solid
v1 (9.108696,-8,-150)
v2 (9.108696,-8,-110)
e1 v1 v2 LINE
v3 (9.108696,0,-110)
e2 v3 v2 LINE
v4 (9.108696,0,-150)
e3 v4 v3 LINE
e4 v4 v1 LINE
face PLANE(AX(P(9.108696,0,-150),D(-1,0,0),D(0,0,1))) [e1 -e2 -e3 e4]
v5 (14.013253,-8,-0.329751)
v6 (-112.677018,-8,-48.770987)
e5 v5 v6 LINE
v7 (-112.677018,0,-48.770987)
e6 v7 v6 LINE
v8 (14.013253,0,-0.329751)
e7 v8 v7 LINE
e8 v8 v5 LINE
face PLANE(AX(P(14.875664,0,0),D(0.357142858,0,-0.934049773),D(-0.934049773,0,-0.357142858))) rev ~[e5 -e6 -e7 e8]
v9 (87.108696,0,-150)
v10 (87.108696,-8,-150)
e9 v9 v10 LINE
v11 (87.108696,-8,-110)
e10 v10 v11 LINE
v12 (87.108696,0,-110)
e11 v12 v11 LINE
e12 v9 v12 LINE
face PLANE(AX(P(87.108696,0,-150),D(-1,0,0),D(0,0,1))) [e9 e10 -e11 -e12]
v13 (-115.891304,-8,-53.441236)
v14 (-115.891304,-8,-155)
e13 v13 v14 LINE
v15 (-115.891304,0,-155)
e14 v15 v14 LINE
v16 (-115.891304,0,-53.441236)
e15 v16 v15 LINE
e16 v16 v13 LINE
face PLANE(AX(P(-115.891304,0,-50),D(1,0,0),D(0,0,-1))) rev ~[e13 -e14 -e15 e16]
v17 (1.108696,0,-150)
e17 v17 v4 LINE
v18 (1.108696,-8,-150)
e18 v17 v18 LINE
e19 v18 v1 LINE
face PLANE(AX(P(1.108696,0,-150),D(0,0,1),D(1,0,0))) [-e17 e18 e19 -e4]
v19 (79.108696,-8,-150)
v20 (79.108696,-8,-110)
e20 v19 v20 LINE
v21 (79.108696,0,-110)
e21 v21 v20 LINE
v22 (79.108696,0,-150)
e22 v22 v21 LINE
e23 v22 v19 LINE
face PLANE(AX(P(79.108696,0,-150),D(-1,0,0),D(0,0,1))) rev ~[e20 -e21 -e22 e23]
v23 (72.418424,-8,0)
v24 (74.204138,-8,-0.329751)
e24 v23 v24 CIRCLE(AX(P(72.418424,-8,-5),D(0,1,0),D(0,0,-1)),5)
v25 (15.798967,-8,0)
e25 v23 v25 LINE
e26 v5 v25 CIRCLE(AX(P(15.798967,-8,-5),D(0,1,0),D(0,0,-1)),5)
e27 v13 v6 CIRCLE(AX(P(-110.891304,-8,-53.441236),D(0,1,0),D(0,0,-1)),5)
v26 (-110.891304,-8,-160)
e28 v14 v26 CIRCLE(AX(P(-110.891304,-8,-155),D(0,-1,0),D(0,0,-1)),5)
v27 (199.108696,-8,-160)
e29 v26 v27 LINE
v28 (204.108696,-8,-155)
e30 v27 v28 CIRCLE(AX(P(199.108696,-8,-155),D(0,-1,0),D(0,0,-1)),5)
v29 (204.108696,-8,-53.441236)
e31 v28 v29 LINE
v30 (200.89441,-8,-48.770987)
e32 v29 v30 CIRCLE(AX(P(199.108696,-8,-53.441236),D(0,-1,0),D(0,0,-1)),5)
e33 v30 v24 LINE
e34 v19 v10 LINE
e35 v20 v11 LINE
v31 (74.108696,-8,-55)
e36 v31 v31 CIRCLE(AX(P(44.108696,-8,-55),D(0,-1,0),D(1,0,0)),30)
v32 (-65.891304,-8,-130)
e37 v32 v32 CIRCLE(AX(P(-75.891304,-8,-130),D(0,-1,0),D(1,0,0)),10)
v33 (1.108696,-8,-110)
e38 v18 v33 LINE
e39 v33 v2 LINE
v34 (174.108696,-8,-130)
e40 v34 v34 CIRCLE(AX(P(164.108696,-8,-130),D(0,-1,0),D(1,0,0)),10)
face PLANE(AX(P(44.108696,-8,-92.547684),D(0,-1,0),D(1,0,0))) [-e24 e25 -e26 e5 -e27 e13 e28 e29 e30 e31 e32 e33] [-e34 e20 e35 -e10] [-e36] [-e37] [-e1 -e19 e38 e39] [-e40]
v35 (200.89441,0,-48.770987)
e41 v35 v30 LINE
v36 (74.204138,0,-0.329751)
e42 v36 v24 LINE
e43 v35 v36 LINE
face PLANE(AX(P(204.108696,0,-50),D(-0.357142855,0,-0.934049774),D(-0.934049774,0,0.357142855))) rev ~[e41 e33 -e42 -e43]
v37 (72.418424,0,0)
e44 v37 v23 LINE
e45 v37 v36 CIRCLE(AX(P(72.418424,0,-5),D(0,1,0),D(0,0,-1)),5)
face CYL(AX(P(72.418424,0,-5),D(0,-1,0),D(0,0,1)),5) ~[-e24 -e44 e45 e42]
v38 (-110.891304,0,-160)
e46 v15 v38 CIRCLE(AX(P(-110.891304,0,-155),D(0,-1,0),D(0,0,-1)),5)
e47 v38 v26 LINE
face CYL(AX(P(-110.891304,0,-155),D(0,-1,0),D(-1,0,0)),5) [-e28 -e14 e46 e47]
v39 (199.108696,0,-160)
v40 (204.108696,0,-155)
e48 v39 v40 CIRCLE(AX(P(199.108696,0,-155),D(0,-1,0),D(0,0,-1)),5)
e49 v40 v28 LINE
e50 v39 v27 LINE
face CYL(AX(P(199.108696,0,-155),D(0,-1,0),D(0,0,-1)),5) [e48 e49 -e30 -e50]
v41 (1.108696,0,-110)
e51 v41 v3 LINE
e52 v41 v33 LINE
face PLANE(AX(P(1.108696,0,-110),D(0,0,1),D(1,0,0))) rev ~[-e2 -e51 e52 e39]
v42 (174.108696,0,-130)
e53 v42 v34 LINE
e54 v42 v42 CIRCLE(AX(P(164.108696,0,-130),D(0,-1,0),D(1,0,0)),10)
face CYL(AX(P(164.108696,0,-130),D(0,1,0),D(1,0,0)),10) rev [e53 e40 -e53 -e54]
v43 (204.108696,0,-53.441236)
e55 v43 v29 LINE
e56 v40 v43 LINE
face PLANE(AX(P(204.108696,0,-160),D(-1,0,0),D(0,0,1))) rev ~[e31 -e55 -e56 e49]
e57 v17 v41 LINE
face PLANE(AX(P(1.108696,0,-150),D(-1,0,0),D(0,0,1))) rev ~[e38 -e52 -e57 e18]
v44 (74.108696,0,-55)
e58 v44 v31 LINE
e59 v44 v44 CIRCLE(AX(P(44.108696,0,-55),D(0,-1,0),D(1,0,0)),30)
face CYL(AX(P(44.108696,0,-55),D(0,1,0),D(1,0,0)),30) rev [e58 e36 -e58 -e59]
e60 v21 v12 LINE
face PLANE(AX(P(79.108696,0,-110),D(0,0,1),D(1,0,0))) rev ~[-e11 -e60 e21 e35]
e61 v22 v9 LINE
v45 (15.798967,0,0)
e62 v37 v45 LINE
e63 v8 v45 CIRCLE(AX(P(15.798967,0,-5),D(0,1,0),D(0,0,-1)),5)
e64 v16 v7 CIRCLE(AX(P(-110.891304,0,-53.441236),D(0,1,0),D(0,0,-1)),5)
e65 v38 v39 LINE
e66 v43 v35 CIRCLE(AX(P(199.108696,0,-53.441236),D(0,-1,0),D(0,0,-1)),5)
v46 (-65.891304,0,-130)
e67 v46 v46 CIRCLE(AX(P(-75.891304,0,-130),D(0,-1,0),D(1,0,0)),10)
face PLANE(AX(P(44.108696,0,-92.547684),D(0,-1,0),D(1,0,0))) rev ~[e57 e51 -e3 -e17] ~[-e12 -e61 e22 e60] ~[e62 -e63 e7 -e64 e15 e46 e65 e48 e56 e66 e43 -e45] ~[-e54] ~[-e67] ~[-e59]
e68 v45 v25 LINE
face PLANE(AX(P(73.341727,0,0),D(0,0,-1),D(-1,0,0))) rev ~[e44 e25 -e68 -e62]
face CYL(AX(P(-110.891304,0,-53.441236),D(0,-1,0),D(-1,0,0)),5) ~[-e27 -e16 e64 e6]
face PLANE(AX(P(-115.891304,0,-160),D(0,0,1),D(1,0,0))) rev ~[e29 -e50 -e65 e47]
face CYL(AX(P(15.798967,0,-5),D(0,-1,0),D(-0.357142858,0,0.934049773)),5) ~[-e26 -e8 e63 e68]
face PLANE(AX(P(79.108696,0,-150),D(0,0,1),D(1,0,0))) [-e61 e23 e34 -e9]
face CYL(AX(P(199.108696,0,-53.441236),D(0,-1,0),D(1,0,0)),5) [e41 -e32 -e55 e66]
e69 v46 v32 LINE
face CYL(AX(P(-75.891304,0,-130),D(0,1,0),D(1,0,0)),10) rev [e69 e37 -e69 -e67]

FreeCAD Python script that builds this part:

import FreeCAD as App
import Part
import Sketcher


def edges_at(feature, points):
    """Names of the edges that pass closest to the given points."""
    edges = feature.Shape.Edges
    near = lambda p: min(range(len(edges)), key=lambda i: edges[i].distToShape(Part.Vertex(*p))[0])
    return sorted({f"Edge{near(p) + 1}" for p in points})

doc = App.newDocument("Part")
body = doc.addObject("PartDesign::Body", "Body")

# Sketch on XZ plane
sketch1 = body.newObject("Sketcher::SketchObject", "Sketch")
sketch1.AttachmentSupport = (doc.getObject("XZ_Plane"), [""])
sketch1.MapMode = "FlatFace"
sketch1.addGeometry([
    Part.LineSegment(App.Vector(-116, -50, 0), App.Vector(-116, -160, 0)),  # 0
    Part.LineSegment(App.Vector(-116, -160, 0), App.Vector(204, -160, 0)),  # 1
    Part.LineSegment(App.Vector(204, -160, 0), App.Vector(204, -50, 0)),  # 2
    Part.LineSegment(App.Vector(204, -50, 0), App.Vector(73, 0, 0)),  # 3
    Part.LineSegment(App.Vector(73, 0, 0), App.Vector(15, 0, 0)),  # 4
    Part.LineSegment(App.Vector(15, 0, 0), App.Vector(-116, -50, 0)),  # 5
    Part.Circle(App.Vector(-76, -130, 0), App.Vector(0, 0, 1), 10),  # 6
    Part.LineSegment(App.Vector(9, -150, 0), App.Vector(1, -150, 0)),  # 7
    Part.LineSegment(App.Vector(1, -150, 0), App.Vector(1, -110, 0)),  # 8
    Part.LineSegment(App.Vector(1, -110, 0), App.Vector(9, -110, 0)),  # 9
    Part.LineSegment(App.Vector(9, -110, 0), App.Vector(9, -150, 0)),  # 10
    Part.LineSegment(App.Vector(87, -150, 0), App.Vector(79, -150, 0)),  # 11
    Part.LineSegment(App.Vector(79, -150, 0), App.Vector(79, -110, 0)),  # 12
    Part.LineSegment(App.Vector(79, -110, 0), App.Vector(87, -110, 0)),  # 13
    Part.LineSegment(App.Vector(87, -110, 0), App.Vector(87, -150, 0)),  # 14
    Part.Circle(App.Vector(164, -130, 0), App.Vector(0, 0, 1), 10),  # 15
    Part.Circle(App.Vector(44, -55, 0), App.Vector(0, 0, 1), 30),  # 16
], False)
sketch1.addConstraint([
    Sketcher.Constraint("Coincident", 0, 2, 1, 1),
    Sketcher.Constraint("Coincident", 1, 2, 2, 1),
    Sketcher.Constraint("Coincident", 2, 2, 3, 1),
    Sketcher.Constraint("Coincident", 3, 2, 4, 1),
    Sketcher.Constraint("Coincident", 4, 2, 5, 1),
    Sketcher.Constraint("Coincident", 5, 2, 0, 1),
    Sketcher.Constraint("Coincident", 7, 2, 8, 1),
    Sketcher.Constraint("Coincident", 8, 2, 9, 1),
    Sketcher.Constraint("Coincident", 9, 2, 10, 1),
    Sketcher.Constraint("Coincident", 10, 2, 7, 1),
    Sketcher.Constraint("Coincident", 11, 2, 12, 1),
    Sketcher.Constraint("Coincident", 12, 2, 13, 1),
    Sketcher.Constraint("Coincident", 13, 2, 14, 1),
    Sketcher.Constraint("Coincident", 14, 2, 11, 1),
    Sketcher.Constraint("Vertical", 0),
    Sketcher.Constraint("Horizontal", 1),
    Sketcher.Constraint("Vertical", 2),
    Sketcher.Constraint("Horizontal", 4),
    Sketcher.Constraint("Horizontal", 7),
    Sketcher.Constraint("Vertical", 8),
    Sketcher.Constraint("Horizontal", 9),
    Sketcher.Constraint("Vertical", 10),
    Sketcher.Constraint("Horizontal", 11),
    Sketcher.Constraint("Vertical", 12),
    Sketcher.Constraint("Horizontal", 13),
    Sketcher.Constraint("Vertical", 14),
    Sketcher.Constraint("Equal", 6, 15),
    Sketcher.Constraint("PointOnObject", 3, 2, -1),
    Sketcher.Constraint("Horizontal", 6, 3, 15, 3),
    Sketcher.Constraint("Horizontal", 2, 2, 5, 2),
    Sketcher.Constraint("Horizontal", 10, 2, 11, 2),
    Sketcher.Constraint("Horizontal", 9, 2, 12, 2),
    Sketcher.Constraint("Equal", 9, 11),
    Sketcher.Constraint("Equal", 3, 5),
    Sketcher.Constraint("Diameter", 6, 20.0),
    Sketcher.Constraint("Diameter", 16, 60.0),
    Sketcher.Constraint("DistanceX", 1, 1, 1, 2, 320.0),
    Sketcher.Constraint("DistanceX", 7, 2, 7, 1, 8.0),
    Sketcher.Constraint("DistanceY", 0, 2, 0, 1, 110.0),
    Sketcher.Constraint("DistanceY", 8, 1, 8, 2, 40.0),
    Sketcher.Constraint("Distance", 3, 140.000001),
    Sketcher.Constraint("DistanceY", 6, 3, -1, 1, 130.0),
    Sketcher.Constraint("DistanceY", 16, 3, -1, 1, 55.0),
    Sketcher.Constraint("DistanceY", 0, 2, -1, 1, 160.0),
    Sketcher.Constraint("DistanceY", 7, 2, -1, 1, 150.0),
    Sketcher.Constraint("DistanceX", 6, 3, 15, 3, 240.0),
    Sketcher.Constraint("DistanceX", 6, 3, 16, 3, 120.0),
    Sketcher.Constraint("DistanceX", 0, 2, 6, 3, 40.0),
    Sketcher.Constraint("DistanceX", 6, 3, 7, 2, 77.0),
    Sketcher.Constraint("DistanceX", 10, 2, 11, 2, 70.0),
    Sketcher.Constraint("DistanceX", 6, 3, -1, 1, 75.891304),
])
pad1 = body.newObject("PartDesign::Pad", "Pad")
pad1.Profile = sketch1
pad1.Length = 8
doc.recompute()

fillet = body.newObject("PartDesign::Fillet", "Fillet")
fillet.Base = (pad1, edges_at(pad1, [
    (-115.891, -4, -50),
    (14.876, -4, 0),
    (204.109, -4, -50),
    (204.109, -4, -160),
    (-115.891, -4, -160),
    (73.342, -4, 0),
]))
fillet.Radius = 5

doc.recompute()
